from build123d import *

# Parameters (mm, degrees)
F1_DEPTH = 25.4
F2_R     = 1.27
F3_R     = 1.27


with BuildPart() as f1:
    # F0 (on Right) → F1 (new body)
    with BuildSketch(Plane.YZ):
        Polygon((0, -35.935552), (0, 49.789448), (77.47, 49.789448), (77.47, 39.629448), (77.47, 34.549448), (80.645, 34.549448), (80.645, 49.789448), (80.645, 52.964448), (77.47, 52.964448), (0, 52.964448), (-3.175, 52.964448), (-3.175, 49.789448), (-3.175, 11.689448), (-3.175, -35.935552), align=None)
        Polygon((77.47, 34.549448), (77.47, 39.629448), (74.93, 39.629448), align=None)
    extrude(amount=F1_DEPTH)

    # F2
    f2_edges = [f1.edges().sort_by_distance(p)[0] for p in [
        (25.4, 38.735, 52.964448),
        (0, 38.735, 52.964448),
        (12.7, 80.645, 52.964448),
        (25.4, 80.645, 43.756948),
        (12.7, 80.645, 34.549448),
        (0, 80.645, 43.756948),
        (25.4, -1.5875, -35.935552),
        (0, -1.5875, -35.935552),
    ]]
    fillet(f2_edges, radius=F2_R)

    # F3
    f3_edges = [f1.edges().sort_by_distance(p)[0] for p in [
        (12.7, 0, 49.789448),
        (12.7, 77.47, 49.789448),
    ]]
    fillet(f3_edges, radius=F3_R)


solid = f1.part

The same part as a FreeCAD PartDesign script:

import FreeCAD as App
import Part
import Sketcher

V = App.Vector
Q = App.Units.Quantity


def edges_at(feature, points):
    """Names of the edges that pass closest to the given points."""
    edges = feature.Shape.Edges
    near = lambda p: min(range(len(edges)), key=lambda i: edges[i].distToShape(Part.Vertex(*p))[0])
    return sorted({f"Edge{near(p) + 1}" for p in points})


def add_polygon(sketch, points):
    """Adds a closed chain of lines whose ends are joined by coincident constraints."""
    first, n = sketch.GeometryCount, len(points)
    for a, b in zip(points, points[1:] + points[:1]):
        sketch.addGeometry(Part.LineSegment(App.Vector(*a, 0), App.Vector(*b, 0)), False)
    for i in range(n):
        sketch.addConstraint(Sketcher.Constraint("Coincident", first + i, 2, first + (i + 1) % n, 1))

doc = App.newDocument("Part")
body = doc.addObject("PartDesign::Body", "Body")

sketch1 = body.newObject("Sketcher::SketchObject", "Sketch")
sketch1.AttachmentSupport = (doc.getObject("YZ_Plane"), [""])
sketch1.MapMode = "FlatFace"
add_polygon(sketch1, [(0, -35.9), (0, 49.8), (77.5, 49.8), (77.5, 39.6), (74.9, 39.6), (77.5, 34.5), (80.6, 34.5), (80.6, 53), (-3.2, 53), (-3.2, -35.9)])
sketch1.addConstraint([
    Sketcher.Constraint("Vertical", 0),
    Sketcher.Constraint("Horizontal", 1),
    Sketcher.Constraint("Vertical", 2),
    Sketcher.Constraint("Horizontal", 3),
    Sketcher.Constraint("Horizontal", 5),
    Sketcher.Constraint("Vertical", 6),
    Sketcher.Constraint("Horizontal", 7),
    Sketcher.Constraint("Vertical", 8),
    Sketcher.Constraint("Horizontal", 9),
    Sketcher.Constraint("PointOnObject", 0, 2, -2),
    Sketcher.Constraint("Vertical", 2, 2, 4, 2),
    Sketcher.Constraint("Equal", 5, 9),
    Sketcher.Constraint("DistanceX", 3, 2, 3, 1, Q("0.1 in")),
    Sketcher.Constraint("DistanceX", 7, 2, 7, 1, Q("3.3 in")),
    Sketcher.Constraint("DistanceY", 2, 2, 2, 1, Q("0.4 in")),
    Sketcher.Constraint("DistanceY", 8, 2, 8, 1, Q("3.5 in")),
    Sketcher.Constraint("DistanceX", 1, 1, 1, 2, Q("3.05 in")),
    Sketcher.Constraint("DistanceY", 4, 2, 2, 2, Q("0.2 in")),
    Sketcher.Constraint("DistanceY", 0, 1, 0, 2, Q("3.375 in")),
    Sketcher.Constraint("DistanceY", -1, 1, 0, 2, Q("49.789448 mm")),
])
pad1 = body.newObject("PartDesign::Pad", "Pad")
pad1.Profile = sketch1
pad1.Length = Q("1 in")
doc.recompute()

fillet = body.newObject("PartDesign::Fillet", "Fillet")
fillet.Base = (pad1, edges_at(pad1, [
    (25.4, 38.735, 52.964),
    (0, 38.735, 52.964),
    (12.7, 80.645, 52.964),
    (25.4, 80.645, 43.757),
    (12.7, 80.645, 34.549),
    (0, 80.645, 43.757),
    (25.4, -1.587, -35.936),
    (0, -1.587, -35.936),
]))
fillet.Radius = Q("0.05 in")
doc.recompute()

fillet2 = body.newObject("PartDesign::Fillet", "Fillet001")
fillet2.Base = (fillet, edges_at(fillet, [(12.7, 0, 49.789), (12.7, 77.47, 49.789)]))
fillet2.Radius = Q("0.05 in")

doc.recompute()
